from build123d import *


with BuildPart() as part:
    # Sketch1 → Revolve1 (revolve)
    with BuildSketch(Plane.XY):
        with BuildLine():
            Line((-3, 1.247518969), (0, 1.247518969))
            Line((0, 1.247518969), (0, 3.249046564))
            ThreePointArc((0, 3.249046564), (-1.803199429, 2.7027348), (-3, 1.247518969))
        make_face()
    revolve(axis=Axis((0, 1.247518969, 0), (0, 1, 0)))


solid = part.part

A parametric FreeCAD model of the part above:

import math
import FreeCAD as App
import Part
import Sketcher
from FreeCAD import Vector
Q = App.Units.Quantity

doc = App.newDocument("Part")
body = doc.addObject("PartDesign::Body", "Body")

# Sketch on XY plane
sketch1 = doc.addObject("Sketcher::SketchObject", "Sketch")
body.addObject(sketch1)
sketch1.AttachmentSupport = (doc.XY_Plane, [""])
sketch1.MapMode = "FlatFace"
sketch1.addGeometry([
    Part.LineSegment(Vector(-3, 1.2, 0), Vector(0, 1.2, 0)),
    Part.LineSegment(Vector(0, 1.2, 0), Vector(0, 3.2, 0)),
    Part.ArcOfCircle(Part.Circle(Vector(0, 0, 0), Vector(0, 0, 1), 3.2), math.radians(90), math.radians(157)),
], False)
sketch1.addConstraint([
    Sketcher.Constraint("Coincident", 0, 2, 1, 1),
    Sketcher.Constraint("Coincident", 1, 2, 2, 1),
    Sketcher.Constraint("Coincident", 2, 2, 0, 1),
    Sketcher.Constraint("Horizontal", 0),
    Sketcher.Constraint("Vertical", 1),
    Sketcher.Constraint("Coincident", 2, 3, -1, 1),
    Sketcher.Constraint("PointOnObject", 0, 2, -2),
    Sketcher.Constraint("DistanceX", 0, 1, 0, 2, Q("3 mm")),
    Sketcher.Constraint("Radius", 2, Q("3.249047 mm")),
])
revolution = doc.addObject("PartDesign::Revolution", "Revolution")
body.addObject(revolution)
revolution.Profile = sketch1
revolution.ReferenceAxis = (sketch1, ["V_Axis"])
revolution.Angle = 360

doc.recompute()
